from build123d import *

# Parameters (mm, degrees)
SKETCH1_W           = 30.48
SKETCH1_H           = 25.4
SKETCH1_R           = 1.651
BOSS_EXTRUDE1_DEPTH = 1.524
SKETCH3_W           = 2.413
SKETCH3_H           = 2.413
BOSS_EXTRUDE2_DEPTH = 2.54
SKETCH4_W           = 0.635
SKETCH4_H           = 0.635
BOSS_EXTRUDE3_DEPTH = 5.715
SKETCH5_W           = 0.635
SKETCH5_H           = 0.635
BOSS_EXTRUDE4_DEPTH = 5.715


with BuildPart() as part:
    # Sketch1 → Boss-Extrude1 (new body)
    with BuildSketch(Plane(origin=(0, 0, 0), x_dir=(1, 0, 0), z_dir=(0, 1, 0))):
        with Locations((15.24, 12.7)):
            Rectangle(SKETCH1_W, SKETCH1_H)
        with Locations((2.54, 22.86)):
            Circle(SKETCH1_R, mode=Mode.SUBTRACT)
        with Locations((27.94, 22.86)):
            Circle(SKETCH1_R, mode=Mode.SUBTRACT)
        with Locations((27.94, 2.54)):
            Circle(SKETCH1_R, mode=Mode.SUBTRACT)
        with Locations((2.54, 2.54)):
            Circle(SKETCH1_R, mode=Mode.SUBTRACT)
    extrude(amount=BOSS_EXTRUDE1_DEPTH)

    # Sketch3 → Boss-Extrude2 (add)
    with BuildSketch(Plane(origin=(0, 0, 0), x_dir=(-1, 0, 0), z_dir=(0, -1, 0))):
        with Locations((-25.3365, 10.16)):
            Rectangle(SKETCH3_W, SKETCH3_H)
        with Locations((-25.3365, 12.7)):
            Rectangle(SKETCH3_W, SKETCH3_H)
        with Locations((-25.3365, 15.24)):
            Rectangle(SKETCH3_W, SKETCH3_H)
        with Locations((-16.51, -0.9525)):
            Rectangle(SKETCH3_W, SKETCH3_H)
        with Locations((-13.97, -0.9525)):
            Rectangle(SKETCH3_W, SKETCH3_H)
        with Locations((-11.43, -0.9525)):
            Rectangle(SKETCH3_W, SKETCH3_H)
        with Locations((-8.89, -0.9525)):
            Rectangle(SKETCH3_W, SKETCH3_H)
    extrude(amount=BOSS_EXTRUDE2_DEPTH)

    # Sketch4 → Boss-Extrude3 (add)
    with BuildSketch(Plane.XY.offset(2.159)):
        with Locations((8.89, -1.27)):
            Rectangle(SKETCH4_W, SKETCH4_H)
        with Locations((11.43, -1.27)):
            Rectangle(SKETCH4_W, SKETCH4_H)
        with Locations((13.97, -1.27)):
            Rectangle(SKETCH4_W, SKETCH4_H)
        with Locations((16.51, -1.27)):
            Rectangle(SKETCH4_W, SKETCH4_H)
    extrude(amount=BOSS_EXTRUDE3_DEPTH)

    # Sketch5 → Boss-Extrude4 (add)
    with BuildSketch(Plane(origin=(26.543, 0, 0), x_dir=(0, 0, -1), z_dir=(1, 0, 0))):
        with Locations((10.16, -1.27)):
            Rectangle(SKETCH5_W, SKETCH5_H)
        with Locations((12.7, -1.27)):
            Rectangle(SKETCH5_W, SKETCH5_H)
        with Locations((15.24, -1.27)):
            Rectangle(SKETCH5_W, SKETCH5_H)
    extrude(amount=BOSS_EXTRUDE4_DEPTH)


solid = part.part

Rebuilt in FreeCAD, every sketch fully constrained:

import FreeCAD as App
import Part
import Sketcher

V = App.Vector
Q = App.Units.Quantity

doc = App.newDocument("Part")
body = doc.addObject("PartDesign::Body", "Body")

sketch1 = body.newObject("Sketcher::SketchObject", "Sketch")
sketch1.AttachmentSupport = (doc.getObject("XZ_Plane"), [""])
sketch1.MapMode = "FlatFace"
sketch1.addGeometry(Part.LineSegment(V(0, -25.4, 0), V(0, 0, 0)), False)
sketch1.addGeometry(Part.LineSegment(V(0, 0, 0), V(30.5, 0, 0)), False)
sketch1.addGeometry(Part.LineSegment(V(30.5, 0, 0), V(30.5, -25.4, 0)), False)
sketch1.addGeometry(Part.LineSegment(V(30.5, -25.4, 0), V(0, -25.4, 0)), False)
sketch1.addGeometry(Part.Circle(V(2.5, -2.5, 0), V(0, 0, 1), 1.7), False)
sketch1.addGeometry(Part.Circle(V(27.9, -2.5, 0), V(0, 0, 1), 1.7), False)
sketch1.addGeometry(Part.Circle(V(2.5, -22.9, 0), V(0, 0, 1), 1.7), False)
sketch1.addGeometry(Part.Circle(V(27.9, -22.9, 0), V(0, 0, 1), 1.7), False)
sketch1.addConstraint(Sketcher.Constraint("Coincident", 0, 2, 1, 1))
sketch1.addConstraint(Sketcher.Constraint("Coincident", 1, 2, 2, 1))
sketch1.addConstraint(Sketcher.Constraint("Coincident", 2, 2, 3, 1))
sketch1.addConstraint(Sketcher.Constraint("Coincident", 3, 2, 0, 1))
sketch1.addConstraint(Sketcher.Constraint("Vertical", 0))
sketch1.addConstraint(Sketcher.Constraint("Horizontal", 1))
sketch1.addConstraint(Sketcher.Constraint("Vertical", 2))
sketch1.addConstraint(Sketcher.Constraint("Horizontal", 3))
sketch1.addConstraint(Sketcher.Constraint("Coincident", 0, 2, -1, 1))
sketch1.addConstraint(Sketcher.Constraint("Equal", 4, 5))
sketch1.addConstraint(Sketcher.Constraint("Equal", 5, 6))
sketch1.addConstraint(Sketcher.Constraint("Equal", 6, 7))
sketch1.addConstraint(Sketcher.Constraint("Horizontal", 4, 3, 5, 3))
sketch1.addConstraint(Sketcher.Constraint("Horizontal", 6, 3, 7, 3))
sketch1.addConstraint(Sketcher.Constraint("Vertical", 4, 3, 6, 3))
sketch1.addConstraint(Sketcher.Constraint("Vertical", 5, 3, 7, 3))
sketch1.addConstraint(Sketcher.Constraint("Diameter", 4, Q("0.13 in")))
sketch1.addConstraint(Sketcher.Constraint("DistanceY", 0, 1, 0, 2, Q("1 in")))
sketch1.addConstraint(Sketcher.Constraint("DistanceX", 1, 1, 1, 2, Q("1.2 in")))
sketch1.addConstraint(Sketcher.Constraint("DistanceX", 4, 3, 5, 3, Q("1 in")))
sketch1.addConstraint(Sketcher.Constraint("DistanceX", -1, 1, 4, 3, Q("0.1 in")))
sketch1.addConstraint(Sketcher.Constraint("DistanceY", 4, 3, -1, 1, Q("0.1 in")))
sketch1.addConstraint(Sketcher.Constraint("DistanceY", 6, 3, -1, 1, Q("0.9 in")))
pad1 = body.newObject("PartDesign::Pad", "Pad")
pad1.Profile = sketch1
pad1.Length = Q("0.06 in")
pad1.Reversed = True

sketch2 = body.newObject("Sketcher::SketchObject", "Sketch001")
sketch2.AttachmentSupport = (doc.getObject("XZ_Plane"), [""])
sketch2.MapMode = "FlatFace"
sketch2.addGeometry(Part.LineSegment(V(26.5, -11.4, 0), V(26.5, -9, 0)), False)
sketch2.addGeometry(Part.LineSegment(V(26.5, -9, 0), V(24.1, -9, 0)), False)
sketch2.addGeometry(Part.LineSegment(V(24.1, -9, 0), V(24.1, -11.4, 0)), False)
sketch2.addGeometry(Part.LineSegment(V(24.1, -11.4, 0), V(26.5, -11.4, 0)), False)
sketch2.addGeometry(Part.LineSegment(V(26.5, -13.9, 0), V(26.5, -11.5, 0)), False)
sketch2.addGeometry(Part.LineSegment(V(26.5, -11.5, 0), V(24.1, -11.5, 0)), False)
sketch2.addGeometry(Part.LineSegment(V(24.1, -11.5, 0), V(24.1, -13.9, 0)), False)
sketch2.addGeometry(Part.LineSegment(V(24.1, -13.9, 0), V(26.5, -13.9, 0)), False)
sketch2.addGeometry(Part.LineSegment(V(26.5, -16.4, 0), V(26.5, -14, 0)), False)
sketch2.addGeometry(Part.LineSegment(V(26.5, -14, 0), V(24.1, -14, 0)), False)
sketch2.addGeometry(Part.LineSegment(V(24.1, -14, 0), V(24.1, -16.4, 0)), False)
sketch2.addGeometry(Part.LineSegment(V(24.1, -16.4, 0), V(26.5, -16.4, 0)), False)
sketch2.addGeometry(Part.LineSegment(V(17.7, -0.3, 0), V(17.7, 2.2, 0)), False)
sketch2.addGeometry(Part.LineSegment(V(17.7, 2.2, 0), V(15.3, 2.2, 0)), False)
sketch2.addGeometry(Part.LineSegment(V(15.3, 2.2, 0), V(15.3, -0.3, 0)), False)
sketch2.addGeometry(Part.LineSegment(V(15.3, -0.3, 0), V(17.7, -0.3, 0)), False)
sketch2.addGeometry(Part.LineSegment(V(15.2, -0.3, 0), V(15.2, 2.2, 0)), False)
sketch2.addGeometry(Part.LineSegment(V(15.2, 2.2, 0), V(12.8, 2.2, 0)), False)
sketch2.addGeometry(Part.LineSegment(V(12.8, 2.2, 0), V(12.8, -0.3, 0)), False)
sketch2.addGeometry(Part.LineSegment(V(12.8, -0.3, 0), V(15.2, -0.3, 0)), False)
sketch2.addGeometry(Part.LineSegment(V(12.6, -0.3, 0), V(12.6, 2.2, 0)), False)
sketch2.addGeometry(Part.LineSegment(V(12.6, 2.2, 0), V(10.2, 2.2, 0)), False)
sketch2.addGeometry(Part.LineSegment(V(10.2, 2.2, 0), V(10.2, -0.3, 0)), False)
sketch2.addGeometry(Part.LineSegment(V(10.2, -0.3, 0), V(12.6, -0.3, 0)), False)
sketch2.addGeometry(Part.LineSegment(V(10.1, -0.3, 0), V(10.1, 2.2, 0)), False)
sketch2.addGeometry(Part.LineSegment(V(10.1, 2.2, 0), V(7.7, 2.2, 0)), False)
sketch2.addGeometry(Part.LineSegment(V(7.7, 2.2, 0), V(7.7, -0.3, 0)), False)
sketch2.addGeometry(Part.LineSegment(V(7.7, -0.3, 0), V(10.1, -0.3, 0)), False)
sketch2.addConstraint(Sketcher.Constraint("Coincident", 0, 2, 1, 1))
sketch2.addConstraint(Sketcher.Constraint("Coincident", 1, 2, 2, 1))
sketch2.addConstraint(Sketcher.Constraint("Coincident", 2, 2, 3, 1))
sketch2.addConstraint(Sketcher.Constraint("Coincident", 3, 2, 0, 1))
sketch2.addConstraint(Sketcher.Constraint("Coincident", 4, 2, 5, 1))
sketch2.addConstraint(Sketcher.Constraint("Coincident", 5, 2, 6, 1))
sketch2.addConstraint(Sketcher.Constraint("Coincident", 6, 2, 7, 1))
sketch2.addConstraint(Sketcher.Constraint("Coincident", 7, 2, 4, 1))
sketch2.addConstraint(Sketcher.Constraint("Coincident", 8, 2, 9, 1))
sketch2.addConstraint(Sketcher.Constraint("Coincident", 9, 2, 10, 1))
sketch2.addConstraint(Sketcher.Constraint("Coincident", 10, 2, 11, 1))
sketch2.addConstraint(Sketcher.Constraint("Coincident", 11, 2, 8, 1))
sketch2.addConstraint(Sketcher.Constraint("Coincident", 12, 2, 13, 1))
sketch2.addConstraint(Sketcher.Constraint("Coincident", 13, 2, 14, 1))
sketch2.addConstraint(Sketcher.Constraint("Coincident", 14, 2, 15, 1))
sketch2.addConstraint(Sketcher.Constraint("Coincident", 15, 2, 12, 1))
sketch2.addConstraint(Sketcher.Constraint("Coincident", 16, 2, 17, 1))
sketch2.addConstraint(Sketcher.Constraint("Coincident", 17, 2, 18, 1))
sketch2.addConstraint(Sketcher.Constraint("Coincident", 18, 2, 19, 1))
sketch2.addConstraint(Sketcher.Constraint("Coincident", 19, 2, 16, 1))
sketch2.addConstraint(Sketcher.Constraint("Coincident", 20, 2, 21, 1))
sketch2.addConstraint(Sketcher.Constraint("Coincident", 21, 2, 22, 1))
sketch2.addConstraint(Sketcher.Constraint("Coincident", 22, 2, 23, 1))
sketch2.addConstraint(Sketcher.Constraint("Coincident", 23, 2, 20, 1))
sketch2.addConstraint(Sketcher.Constraint("Coincident", 24, 2, 25, 1))
sketch2.addConstraint(Sketcher.Constraint("Coincident", 25, 2, 26, 1))
sketch2.addConstraint(Sketcher.Constraint("Coincident", 26, 2, 27, 1))
sketch2.addConstraint(Sketcher.Constraint("Coincident", 27, 2, 24, 1))
sketch2.addConstraint(Sketcher.Constraint("Vertical", 0))
sketch2.addConstraint(Sketcher.Constraint("Horizontal", 1))
sketch2.addConstraint(Sketcher.Constraint("Vertical", 2))
sketch2.addConstraint(Sketcher.Constraint("Horizontal", 3))
sketch2.addConstraint(Sketcher.Constraint("Vertical", 4))
sketch2.addConstraint(Sketcher.Constraint("Horizontal", 5))
sketch2.addConstraint(Sketcher.Constraint("Vertical", 6))
sketch2.addConstraint(Sketcher.Constraint("Horizontal", 7))
sketch2.addConstraint(Sketcher.Constraint("Vertical", 8))
sketch2.addConstraint(Sketcher.Constraint("Horizontal", 9))
sketch2.addConstraint(Sketcher.Constraint("Vertical", 10))
sketch2.addConstraint(Sketcher.Constraint("Horizontal", 11))
sketch2.addConstraint(Sketcher.Constraint("Vertical", 12))
sketch2.addConstraint(Sketcher.Constraint("Horizontal", 13))
sketch2.addConstraint(Sketcher.Constraint("Vertical", 14))
sketch2.addConstraint(Sketcher.Constraint("Horizontal", 15))
sketch2.addConstraint(Sketcher.Constraint("Vertical", 16))
sketch2.addConstraint(Sketcher.Constraint("Horizontal", 17))
sketch2.addConstraint(Sketcher.Constraint("Vertical", 18))
sketch2.addConstraint(Sketcher.Constraint("Horizontal", 19))
sketch2.addConstraint(Sketcher.Constraint("Vertical", 20))
sketch2.addConstraint(Sketcher.Constraint("Horizontal", 21))
sketch2.addConstraint(Sketcher.Constraint("Vertical", 22))
sketch2.addConstraint(Sketcher.Constraint("Horizontal", 23))
sketch2.addConstraint(Sketcher.Constraint("Vertical", 24))
sketch2.addConstraint(Sketcher.Constraint("Horizontal", 25))
sketch2.addConstraint(Sketcher.Constraint("Vertical", 26))
sketch2.addConstraint(Sketcher.Constraint("Horizontal", 27))
sketch2.addConstraint(Sketcher.Constraint("Horizontal", 13, 2, 16, 2))
sketch2.addConstraint(Sketcher.Constraint("Horizontal", 15, 2, 18, 2))
sketch2.addConstraint(Sketcher.Constraint("Horizontal", 17, 2, 20, 2))
sketch2.addConstraint(Sketcher.Constraint("Horizontal", 19, 2, 22, 2))
sketch2.addConstraint(Sketcher.Constraint("Horizontal", 21, 2, 24, 2))
sketch2.addConstraint(Sketcher.Constraint("Horizontal", 23, 2, 26, 2))
sketch2.addConstraint(Sketcher.Constraint("Vertical", 3, 2, 4, 2))
sketch2.addConstraint(Sketcher.Constraint("Vertical", 2, 2, 5, 2))
sketch2.addConstraint(Sketcher.Constraint("Vertical", 7, 2, 8, 2))
sketch2.addConstraint(Sketcher.Constraint("Vertical", 6, 2, 9, 2))
sketch2.addConstraint(Sketcher.Constraint("Equal", 11, 13))
sketch2.addConstraint(Sketcher.Constraint("Equal", 15, 17))
sketch2.addConstraint(Sketcher.Constraint("Equal", 19, 21))
sketch2.addConstraint(Sketcher.Constraint("Equal", 23, 25))
sketch2.addConstraint(Sketcher.Constraint("Equal", 27, 0))
sketch2.addConstraint(Sketcher.Constraint("Equal", 2, 4))
sketch2.addConstraint(Sketcher.Constraint("Equal", 6, 8))
sketch2.addConstraint(Sketcher.Constraint("Equal", 10, 12))
sketch2.addConstraint(Sketcher.Constraint("DistanceY", 4, 2, 0, 2, Q("0.1 in")))
sketch2.addConstraint(Sketcher.Constraint("DistanceY", 8, 2, 4, 2, Q("0.1 in")))
sketch2.addConstraint(Sketcher.Constraint("DistanceX", 16, 2, 12, 2, Q("0.1 in")))
sketch2.addConstraint(Sketcher.Constraint("DistanceX", 20, 2, 16, 2, Q("0.1 in")))
sketch2.addConstraint(Sketcher.Constraint("DistanceX", 24, 2, 20, 2, Q("0.1 in")))
sketch2.addConstraint(Sketcher.Constraint("DistanceX", 1, 2, 1, 1, Q("0.095 in")))
sketch2.addConstraint(Sketcher.Constraint("DistanceX", -1, 1, 1, 2, Q("0.95 in")))
sketch2.addConstraint(Sketcher.Constraint("DistanceY", 14, 2, -1, 1, Q("0.01 in")))
sketch2.addConstraint(Sketcher.Constraint("DistanceY", 1, 2, 12, 2, Q("0.4375 in")))
sketch2.addConstraint(Sketcher.Constraint("DistanceX", -1, 1, 12, 2, Q("0.6975 in")))
pad2 = body.newObject("PartDesign::Pad", "Pad001")
pad2.Profile = sketch2
pad2.Length = Q("0.1 in")

sketch3 = body.newObject("Sketcher::SketchObject", "Sketch002")
sketch3.AttachmentSupport = (doc.getObject("XY_Plane"), [""])
sketch3.MapMode = "FlatFace"
sketch3.AttachmentOffset = App.Placement(V(0, 0, 0.085 * 25.4), App.Rotation())
sketch3.addGeometry(Part.LineSegment(V(8.6, -1, 0), V(8.6, -1.6, 0)), False)
sketch3.addGeometry(Part.LineSegment(V(8.6, -1.6, 0), V(9.2, -1.6, 0)), False)
sketch3.addGeometry(Part.LineSegment(V(9.2, -1.6, 0), V(9.2, -1, 0)), False)
sketch3.addGeometry(Part.LineSegment(V(9.2, -1, 0), V(8.6, -1, 0)), False)
sketch3.addGeometry(Part.LineSegment(V(11.1, -1, 0), V(11.1, -1.6, 0)), False)
sketch3.addGeometry(Part.LineSegment(V(11.1, -1.6, 0), V(11.7, -1.6, 0)), False)
sketch3.addGeometry(Part.LineSegment(V(11.7, -1.6, 0), V(11.7, -1, 0)), False)
sketch3.addGeometry(Part.LineSegment(V(11.7, -1, 0), V(11.1, -1, 0)), False)
sketch3.addGeometry(Part.LineSegment(V(13.7, -1, 0), V(13.7, -1.6, 0)), False)
sketch3.addGeometry(Part.LineSegment(V(13.7, -1.6, 0), V(14.3, -1.6, 0)), False)
sketch3.addGeometry(Part.LineSegment(V(14.3, -1.6, 0), V(14.3, -1, 0)), False)
sketch3.addGeometry(Part.LineSegment(V(14.3, -1, 0), V(13.7, -1, 0)), False)
sketch3.addGeometry(Part.LineSegment(V(16.2, -1, 0), V(16.2, -1.6, 0)), False)
sketch3.addGeometry(Part.LineSegment(V(16.2, -1.6, 0), V(16.8, -1.6, 0)), False)
sketch3.addGeometry(Part.LineSegment(V(16.8, -1.6, 0), V(16.8, -1, 0)), False)
sketch3.addGeometry(Part.LineSegment(V(16.8, -1, 0), V(16.2, -1, 0)), False)
sketch3.addConstraint(Sketcher.Constraint("Coincident", 0, 2, 1, 1))
sketch3.addConstraint(Sketcher.Constraint("Coincident", 1, 2, 2, 1))
sketch3.addConstraint(Sketcher.Constraint("Coincident", 2, 2, 3, 1))
sketch3.addConstraint(Sketcher.Constraint("Coincident", 3, 2, 0, 1))
sketch3.addConstraint(Sketcher.Constraint("Coincident", 4, 2, 5, 1))
sketch3.addConstraint(Sketcher.Constraint("Coincident", 5, 2, 6, 1))
sketch3.addConstraint(Sketcher.Constraint("Coincident", 6, 2, 7, 1))
sketch3.addConstraint(Sketcher.Constraint("Coincident", 7, 2, 4, 1))
sketch3.addConstraint(Sketcher.Constraint("Coincident", 8, 2, 9, 1))
sketch3.addConstraint(Sketcher.Constraint("Coincident", 9, 2, 10, 1))
sketch3.addConstraint(Sketcher.Constraint("Coincident", 10, 2, 11, 1))
sketch3.addConstraint(Sketcher.Constraint("Coincident", 11, 2, 8, 1))
sketch3.addConstraint(Sketcher.Constraint("Coincident", 12, 2, 13, 1))
sketch3.addConstraint(Sketcher.Constraint("Coincident", 13, 2, 14, 1))
sketch3.addConstraint(Sketcher.Constraint("Coincident", 14, 2, 15, 1))
sketch3.addConstraint(Sketcher.Constraint("Coincident", 15, 2, 12, 1))
sketch3.addConstraint(Sketcher.Constraint("Vertical", 0))
sketch3.addConstraint(Sketcher.Constraint("Horizontal", 1))
sketch3.addConstraint(Sketcher.Constraint("Vertical", 2))
sketch3.addConstraint(Sketcher.Constraint("Horizontal", 3))
sketch3.addConstraint(Sketcher.Constraint("Vertical", 4))
sketch3.addConstraint(Sketcher.Constraint("Horizontal", 5))
sketch3.addConstraint(Sketcher.Constraint("Vertical", 6))
sketch3.addConstraint(Sketcher.Constraint("Horizontal", 7))
sketch3.addConstraint(Sketcher.Constraint("Vertical", 8))
sketch3.addConstraint(Sketcher.Constraint("Horizontal", 9))
sketch3.addConstraint(Sketcher.Constraint("Vertical", 10))
sketch3.addConstraint(Sketcher.Constraint("Horizontal", 11))
sketch3.addConstraint(Sketcher.Constraint("Vertical", 12))
sketch3.addConstraint(Sketcher.Constraint("Horizontal", 13))
sketch3.addConstraint(Sketcher.Constraint("Vertical", 14))
sketch3.addConstraint(Sketcher.Constraint("Horizontal", 15))
sketch3.addConstraint(Sketcher.Constraint("Horizontal", 1, 2, 4, 2))
sketch3.addConstraint(Sketcher.Constraint("Horizontal", 3, 2, 6, 2))
sketch3.addConstraint(Sketcher.Constraint("Horizontal", 5, 2, 8, 2))
sketch3.addConstraint(Sketcher.Constraint("Horizontal", 7, 2, 10, 2))
sketch3.addConstraint(Sketcher.Constraint("Horizontal", 9, 2, 12, 2))
sketch3.addConstraint(Sketcher.Constraint("Horizontal", 11, 2, 14, 2))
sketch3.addConstraint(Sketcher.Constraint("Equal", 3, 5))
sketch3.addConstraint(Sketcher.Constraint("Equal", 7, 9))
sketch3.addConstraint(Sketcher.Constraint("Equal", 11, 13))
sketch3.addConstraint(Sketcher.Constraint("Equal", 15, 0))
sketch3.addConstraint(Sketcher.Constraint("DistanceX", 0, 2, 4, 2, Q("0.1 in")))
sketch3.addConstraint(Sketcher.Constraint("DistanceX", 4, 2, 8, 2, Q("0.1 in")))
sketch3.addConstraint(Sketcher.Constraint("DistanceX", 8, 2, 12, 2, Q("0.1 in")))
sketch3.addConstraint(Sketcher.Constraint("DistanceX", 1, 1, 1, 2, Q("0.025 in")))
sketch3.addConstraint(Sketcher.Constraint("DistanceY", 0, 2, -1, 1, Q("0.0625 in")))
sketch3.addConstraint(Sketcher.Constraint("DistanceX", -1, 1, 4, 2, Q("0.4375 in")))
pad3 = body.newObject("PartDesign::Pad", "Pad002")
pad3.Profile = sketch3
pad3.Length = Q("0.225 in")

sketch4 = body.newObject("Sketcher::SketchObject", "Sketch003")
sketch4.AttachmentSupport = (doc.getObject("YZ_Plane"), [""])
sketch4.MapMode = "FlatFace"
sketch4.AttachmentOffset = App.Placement(V(0, 0, 1.045 * 25.4), App.Rotation())
sketch4.addGeometry(Part.LineSegment(V(-1, -9.8, 0), V(-1.6, -9.8, 0)), False)
sketch4.addGeometry(Part.LineSegment(V(-1.6, -9.8, 0), V(-1.6, -10.5, 0)), False)
sketch4.addGeometry(Part.LineSegment(V(-1.6, -10.5, 0), V(-1, -10.5, 0)), False)
sketch4.addGeometry(Part.LineSegment(V(-1, -10.5, 0), V(-1, -9.8, 0)), False)
sketch4.addGeometry(Part.LineSegment(V(-1, -12.4, 0), V(-1.6, -12.4, 0)), False)
sketch4.addGeometry(Part.LineSegment(V(-1.6, -12.4, 0), V(-1.6, -13, 0)), False)
sketch4.addGeometry(Part.LineSegment(V(-1.6, -13, 0), V(-1, -13, 0)), False)
sketch4.addGeometry(Part.LineSegment(V(-1, -13, 0), V(-1, -12.4, 0)), False)
sketch4.addGeometry(Part.LineSegment(V(-1, -14.9, 0), V(-1.6, -14.9, 0)), False)
sketch4.addGeometry(Part.LineSegment(V(-1.6, -14.9, 0), V(-1.6, -15.6, 0)), False)
sketch4.addGeometry(Part.LineSegment(V(-1.6, -15.6, 0), V(-1, -15.6, 0)), False)
sketch4.addGeometry(Part.LineSegment(V(-1, -15.6, 0), V(-1, -14.9, 0)), False)
sketch4.addConstraint(Sketcher.Constraint("Coincident", 0, 2, 1, 1))
sketch4.addConstraint(Sketcher.Constraint("Coincident", 1, 2, 2, 1))
sketch4.addConstraint(Sketcher.Constraint("Coincident", 2, 2, 3, 1))
sketch4.addConstraint(Sketcher.Constraint("Coincident", 3, 2, 0, 1))
sketch4.addConstraint(Sketcher.Constraint("Coincident", 4, 2, 5, 1))
sketch4.addConstraint(Sketcher.Constraint("Coincident", 5, 2, 6, 1))
sketch4.addConstraint(Sketcher.Constraint("Coincident", 6, 2, 7, 1))
sketch4.addConstraint(Sketcher.Constraint("Coincident", 7, 2, 4, 1))
sketch4.addConstraint(Sketcher.Constraint("Coincident", 8, 2, 9, 1))
sketch4.addConstraint(Sketcher.Constraint("Coincident", 9, 2, 10, 1))
sketch4.addConstraint(Sketcher.Constraint("Coincident", 10, 2, 11, 1))
sketch4.addConstraint(Sketcher.Constraint("Coincident", 11, 2, 8, 1))
sketch4.addConstraint(Sketcher.Constraint("Horizontal", 0))
sketch4.addConstraint(Sketcher.Constraint("Vertical", 1))
sketch4.addConstraint(Sketcher.Constraint("Horizontal", 2))
sketch4.addConstraint(Sketcher.Constraint("Vertical", 3))
sketch4.addConstraint(Sketcher.Constraint("Horizontal", 4))
sketch4.addConstraint(Sketcher.Constraint("Vertical", 5))
sketch4.addConstraint(Sketcher.Constraint("Horizontal", 6))
sketch4.addConstraint(Sketcher.Constraint("Vertical", 7))
sketch4.addConstraint(Sketcher.Constraint("Horizontal", 8))
sketch4.addConstraint(Sketcher.Constraint("Vertical", 9))
sketch4.addConstraint(Sketcher.Constraint("Horizontal", 10))
sketch4.addConstraint(Sketcher.Constraint("Vertical", 11))
sketch4.addConstraint(Sketcher.Constraint("Vertical", 1, 2, 4, 2))
sketch4.addConstraint(Sketcher.Constraint("Vertical", 3, 2, 6, 2))
sketch4.addConstraint(Sketcher.Constraint("Vertical", 5, 2, 8, 2))
sketch4.addConstraint(Sketcher.Constraint("Vertical", 7, 2, 10, 2))
sketch4.addConstraint(Sketcher.Constraint("Equal", 10, 1))
sketch4.addConstraint(Sketcher.Constraint("Equal", 3, 5))
sketch4.addConstraint(Sketcher.Constraint("Equal", 7, 9))
sketch4.addConstraint(Sketcher.Constraint("DistanceY", 4, 2, 0, 2, Q("0.1 in")))
sketch4.addConstraint(Sketcher.Constraint("DistanceY", 8, 2, 4, 2, Q("0.1 in")))
sketch4.addConstraint(Sketcher.Constraint("DistanceX", 0, 2, 0, 1, Q("0.025 in")))
sketch4.addConstraint(Sketcher.Constraint("DistanceX", 0, 2, -1, 1, Q("0.0625 in")))
sketch4.addConstraint(Sketcher.Constraint("DistanceY", 0, 2, -1, 1, Q("0.3875 in")))
pad4 = body.newObject("PartDesign::Pad", "Pad003")
pad4.Profile = sketch4
pad4.Length = Q("0.225 in")

doc.recompute()
